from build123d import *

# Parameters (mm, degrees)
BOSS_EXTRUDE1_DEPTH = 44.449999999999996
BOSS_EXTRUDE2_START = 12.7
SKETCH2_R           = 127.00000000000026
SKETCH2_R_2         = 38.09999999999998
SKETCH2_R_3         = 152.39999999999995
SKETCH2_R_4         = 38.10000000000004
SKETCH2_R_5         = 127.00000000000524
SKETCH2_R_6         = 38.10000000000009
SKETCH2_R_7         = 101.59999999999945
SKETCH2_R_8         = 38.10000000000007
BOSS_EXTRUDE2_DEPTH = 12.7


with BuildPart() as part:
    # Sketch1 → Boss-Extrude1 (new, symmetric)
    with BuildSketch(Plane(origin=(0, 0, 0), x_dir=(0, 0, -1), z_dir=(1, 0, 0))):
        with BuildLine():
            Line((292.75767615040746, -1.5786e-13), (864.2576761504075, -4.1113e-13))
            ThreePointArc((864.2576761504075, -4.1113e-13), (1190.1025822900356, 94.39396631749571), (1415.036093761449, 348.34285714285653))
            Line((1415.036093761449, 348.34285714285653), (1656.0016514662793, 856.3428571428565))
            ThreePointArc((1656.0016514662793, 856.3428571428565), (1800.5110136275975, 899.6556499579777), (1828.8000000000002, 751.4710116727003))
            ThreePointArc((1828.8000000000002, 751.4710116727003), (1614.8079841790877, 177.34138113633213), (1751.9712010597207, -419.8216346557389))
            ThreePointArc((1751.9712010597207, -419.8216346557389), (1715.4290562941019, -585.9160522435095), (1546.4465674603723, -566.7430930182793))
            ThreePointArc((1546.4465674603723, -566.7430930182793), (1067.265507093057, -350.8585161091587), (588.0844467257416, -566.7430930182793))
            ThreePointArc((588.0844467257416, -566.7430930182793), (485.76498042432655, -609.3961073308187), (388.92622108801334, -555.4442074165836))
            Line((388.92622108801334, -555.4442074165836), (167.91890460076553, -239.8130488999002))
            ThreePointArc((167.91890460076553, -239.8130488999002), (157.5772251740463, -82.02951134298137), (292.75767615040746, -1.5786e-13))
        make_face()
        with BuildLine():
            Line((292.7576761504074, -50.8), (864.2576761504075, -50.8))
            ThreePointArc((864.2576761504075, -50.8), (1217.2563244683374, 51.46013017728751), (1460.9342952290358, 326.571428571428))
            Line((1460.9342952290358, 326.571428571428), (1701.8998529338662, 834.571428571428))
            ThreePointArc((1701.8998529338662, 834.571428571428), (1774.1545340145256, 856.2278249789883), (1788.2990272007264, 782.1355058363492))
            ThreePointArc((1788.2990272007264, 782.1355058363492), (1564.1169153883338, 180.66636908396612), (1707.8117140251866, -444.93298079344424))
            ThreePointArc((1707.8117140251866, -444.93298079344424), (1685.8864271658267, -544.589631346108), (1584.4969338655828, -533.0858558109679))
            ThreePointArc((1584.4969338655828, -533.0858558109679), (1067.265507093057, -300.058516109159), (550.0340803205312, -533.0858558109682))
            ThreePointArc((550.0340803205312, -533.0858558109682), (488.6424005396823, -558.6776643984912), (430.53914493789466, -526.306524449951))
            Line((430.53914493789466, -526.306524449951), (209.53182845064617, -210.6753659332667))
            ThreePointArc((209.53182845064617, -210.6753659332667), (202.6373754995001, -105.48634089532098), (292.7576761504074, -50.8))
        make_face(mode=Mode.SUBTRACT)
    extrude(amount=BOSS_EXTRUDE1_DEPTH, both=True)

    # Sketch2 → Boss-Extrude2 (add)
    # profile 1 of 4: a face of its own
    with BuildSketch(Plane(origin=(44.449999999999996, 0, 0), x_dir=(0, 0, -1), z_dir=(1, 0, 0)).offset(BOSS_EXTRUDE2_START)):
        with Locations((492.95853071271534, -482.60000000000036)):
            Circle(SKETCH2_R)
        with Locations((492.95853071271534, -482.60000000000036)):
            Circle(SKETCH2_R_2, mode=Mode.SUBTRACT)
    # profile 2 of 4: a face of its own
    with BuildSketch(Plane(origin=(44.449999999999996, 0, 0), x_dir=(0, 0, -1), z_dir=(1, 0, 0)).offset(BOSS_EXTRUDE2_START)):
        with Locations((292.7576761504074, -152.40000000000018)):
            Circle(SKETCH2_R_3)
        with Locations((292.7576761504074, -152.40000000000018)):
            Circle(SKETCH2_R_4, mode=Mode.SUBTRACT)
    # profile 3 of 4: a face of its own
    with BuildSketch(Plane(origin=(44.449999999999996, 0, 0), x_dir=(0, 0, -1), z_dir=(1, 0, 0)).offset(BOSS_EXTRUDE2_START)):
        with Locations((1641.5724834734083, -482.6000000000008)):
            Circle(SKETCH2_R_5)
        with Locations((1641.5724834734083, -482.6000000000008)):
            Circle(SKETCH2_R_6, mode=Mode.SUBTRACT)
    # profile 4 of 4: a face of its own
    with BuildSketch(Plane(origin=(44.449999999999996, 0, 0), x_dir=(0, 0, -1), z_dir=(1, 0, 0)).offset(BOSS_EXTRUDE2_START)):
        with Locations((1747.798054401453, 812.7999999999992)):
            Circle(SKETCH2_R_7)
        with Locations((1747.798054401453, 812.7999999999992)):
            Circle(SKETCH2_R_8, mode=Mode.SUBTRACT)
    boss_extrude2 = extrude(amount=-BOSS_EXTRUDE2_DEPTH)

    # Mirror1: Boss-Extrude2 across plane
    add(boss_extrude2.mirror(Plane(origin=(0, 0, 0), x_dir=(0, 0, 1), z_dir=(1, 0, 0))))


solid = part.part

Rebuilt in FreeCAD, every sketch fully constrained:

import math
import FreeCAD as App
import Part
import Sketcher

V = App.Vector
Q = App.Units.Quantity

doc = App.newDocument("Part")
body = doc.addObject("PartDesign::Body", "Body")

sketch1 = body.newObject("Sketcher::SketchObject", "Sketch")
sketch1.AttachmentSupport = (doc.getObject("YZ_Plane"), [""])
sketch1.MapMode = "FlatFace"
sketch1.addGeometry([
    Part.LineSegment(V(0, -864, 0), V(0, -293, 0)),
    Part.ArcOfCircle(Part.Circle(V(-152, -293, 0), V(0, 0, 1), 152), math.radians(0), math.radians(125)),
    Part.LineSegment(V(-240, -168, 0), V(-555, -389, 0)),
    Part.ArcOfCircle(Part.Circle(V(-483, -493, 0), V(0, 0, 1), 127), math.radians(125), math.radians(229)),
    Part.ArcOfCircle(Part.Circle(V(-991, -1067, 0), V(0, 0, 1), 640), math.radians(-49), math.radians(49)),
    Part.ArcOfCircle(Part.Circle(V(-483, -1642, 0), V(0, 0, 1), 127), math.radians(131), math.radians(300)),
    Part.ArcOfCircle(Part.Circle(V(108, -2679, 0), V(0, 0, 1), 1067), math.radians(53), math.radians(120)),
    Part.ArcOfCircle(Part.Circle(V(813, -1748, 0), V(0, 0, 1), 102), math.radians(-127), math.radians(65)),
    Part.LineSegment(V(856, -1656, 0), V(348, -1415, 0)),
    Part.ArcOfCircle(Part.Circle(V(610, -864, 0), V(0, 0, 1), 610), math.radians(180), math.radians(245)),
    Part.LineSegment(V(-51, -293, 0), V(-51, -864, 0)),
    Part.ArcOfCircle(Part.Circle(V(610, -864, 0), V(0, 0, 1), 660), math.radians(180), math.radians(245)),
    Part.LineSegment(V(327, -1461, 0), V(835, -1702, 0)),
    Part.ArcOfCircle(Part.Circle(V(813, -1748, 0), V(0, 0, 1), 51), math.radians(-127), math.radians(65)),
    Part.ArcOfCircle(Part.Circle(V(108, -2679, 0), V(0, 0, 1), 1118), math.radians(53), math.radians(120)),
    Part.ArcOfCircle(Part.Circle(V(-483, -1642, 0), V(0, 0, 1), 76), math.radians(131), math.radians(300)),
    Part.ArcOfCircle(Part.Circle(V(-991, -1067, 0), V(0, 0, 1), 691), math.radians(-49), math.radians(49)),
    Part.ArcOfCircle(Part.Circle(V(-483, -493, 0), V(0, 0, 1), 76), math.radians(125), math.radians(229)),
    Part.LineSegment(V(-526, -431, 0), V(-211, -210, 0)),
    Part.ArcOfCircle(Part.Circle(V(-152, -293, 0), V(0, 0, 1), 102), math.radians(0), math.radians(125)),
], False)
sketch1.addConstraint([
    Sketcher.Constraint("Tangent", 0, 2, 1, 1),
    Sketcher.Constraint("Tangent", 1, 2, 2, 1),
    Sketcher.Constraint("Tangent", 2, 2, 3, 1),
    Sketcher.Constraint("Tangent", 3, 2, 4, 2),
    Sketcher.Constraint("Tangent", 4, 1, 5, 1),
    Sketcher.Constraint("Tangent", 5, 2, 6, 2),
    Sketcher.Constraint("Tangent", 6, 1, 7, 1),
    Sketcher.Constraint("Tangent", 7, 2, 8, 1),
    Sketcher.Constraint("Tangent", 8, 2, 9, 2),
    Sketcher.Constraint("Tangent", 9, 1, 0, 1),
    Sketcher.Constraint("Tangent", 10, 2, 11, 1),
    Sketcher.Constraint("Tangent", 11, 2, 12, 1),
    Sketcher.Constraint("Tangent", 12, 2, 13, 2),
    Sketcher.Constraint("Tangent", 13, 1, 14, 1),
    Sketcher.Constraint("Tangent", 14, 2, 15, 2),
    Sketcher.Constraint("Tangent", 15, 1, 16, 1),
    Sketcher.Constraint("Tangent", 16, 2, 17, 2),
    Sketcher.Constraint("Tangent", 17, 1, 18, 1),
    Sketcher.Constraint("Tangent", 18, 2, 19, 2),
    Sketcher.Constraint("Tangent", 19, 1, 10, 1),
    Sketcher.Constraint("Vertical", 0),
    Sketcher.Constraint("Vertical", 10),
    Sketcher.Constraint("Coincident", 11, 3, 9, 3),
    Sketcher.Constraint("Coincident", 13, 3, 7, 3),
    Sketcher.Constraint("Coincident", 14, 3, 6, 3),
    Sketcher.Constraint("Coincident", 15, 3, 5, 3),
    Sketcher.Constraint("Coincident", 16, 3, 4, 3),
    Sketcher.Constraint("Coincident", 17, 3, 3, 3),
    Sketcher.Constraint("Coincident", 19, 3, 1, 3),
    Sketcher.Constraint("Equal", 3, 5),
    Sketcher.Constraint("Equal", 7, 19),
    Sketcher.Constraint("PointOnObject", 0, 2, -2),
    Sketcher.Constraint("Parallel", 8, 12),
    Sketcher.Constraint("Vertical", 3, 3, 5, 3),
    Sketcher.Constraint("Radius", 1, Q("6 in")),
    Sketcher.Constraint("Radius", 3, Q("5 in")),
    Sketcher.Constraint("Radius", 6, Q("42 in")),
    Sketcher.Constraint("Radius", 7, Q("4 in")),
    Sketcher.Constraint("Radius", 9, Q("24 in")),
    Sketcher.Constraint("DistanceY", 0, 1, 0, 2, Q("22.5 in")),
    Sketcher.Constraint("DistanceX", 3, 3, -1, 1, Q("19 in")),
    Sketcher.Constraint("DistanceX", 4, 3, -1, 1, Q("39 in")),
    Sketcher.Constraint("DistanceX", -1, 1, 7, 3, Q("32 in")),
    Sketcher.Constraint("Angle", 2, Q("-145 deg")),
    Sketcher.Constraint("DistanceX", 8, 2, 7, 2, Q("20 in")),
    Sketcher.Constraint("Radius", 4, Q("639.741484 mm")),
    Sketcher.Constraint("DistanceY", 5, 2, -1, 1, Q("1751.971201 mm")),
])
pad1 = body.newObject("PartDesign::Pad", "Pad")
pad1.Profile = sketch1
pad1.Length = Q("3.5 in")
pad1.Midplane = True

sketch2 = body.newObject("Sketcher::SketchObject", "Sketch001")
sketch2.AttachmentSupport = (doc.getObject("YZ_Plane"), [""])
sketch2.MapMode = "FlatFace"
sketch2.AttachmentOffset = App.Placement(V(0, 0, 2.25 * 25.4), App.Rotation())
sketch2.addGeometry([
    Part.Circle(V(-483, -493, 0), V(0, 0, 1), 127),
    Part.Circle(V(-483, -493, 0), V(0, 0, 1), 38),
    Part.Circle(V(-152, -293, 0), V(0, 0, 1), 152),
    Part.Circle(V(-152, -293, 0), V(0, 0, 1), 38),
    Part.Circle(V(-483, -1642, 0), V(0, 0, 1), 127),
    Part.Circle(V(-483, -1642, 0), V(0, 0, 1), 38),
    Part.Circle(V(813, -1748, 0), V(0, 0, 1), 102),
    Part.Circle(V(813, -1748, 0), V(0, 0, 1), 38),
], False)
sketch2.addConstraint([
    Sketcher.Constraint("Coincident", 1, 3, 0, 3),
    Sketcher.Constraint("Coincident", 3, 3, 2, 3),
    Sketcher.Constraint("Coincident", 5, 3, 4, 3),
    Sketcher.Constraint("Coincident", 7, 3, 6, 3),
    Sketcher.Constraint("Equal", 1, 3),
    Sketcher.Constraint("Equal", 0, 4),
    Sketcher.Constraint("Equal", 3, 5),
    Sketcher.Constraint("Equal", 5, 7),
    Sketcher.Constraint("Vertical", 1, 3, 4, 3),
    Sketcher.Constraint("Diameter", 0, Q("10 in")),
    Sketcher.Constraint("Diameter", 1, Q("3 in")),
    Sketcher.Constraint("Diameter", 2, Q("12 in")),
    Sketcher.Constraint("Diameter", 6, Q("8 in")),
    Sketcher.Constraint("DistanceX", 0, 3, -1, 1, Q("19 in")),
    Sketcher.Constraint("DistanceX", 2, 3, -1, 1, Q("6 in")),
    Sketcher.Constraint("DistanceX", -1, 1, 6, 3, Q("32 in")),
    Sketcher.Constraint("DistanceY", 0, 3, -1, 1, Q("492.958531 mm")),
    Sketcher.Constraint("DistanceY", 6, 3, 4, 3, Q("106.225571 mm")),
    Sketcher.Constraint("DistanceY", 6, 3, 2, 3, Q("1455.040378 mm")),
    Sketcher.Constraint("DistanceY", 2, 3, -1, 1, Q("292.757676 mm")),
])
pad2 = body.newObject("PartDesign::Pad", "Pad001")
pad2.Profile = sketch2
pad2.Length = Q("0.5 in")
pad2.Reversed = True
doc.recompute()

mirrored = body.newObject("PartDesign::Mirrored", "Mirrored")
mirrored.Originals = [pad2]
mirrored.MirrorPlane = (doc.getObject("YZ_Plane"), [""])
body.Tip = mirrored

doc.recompute()
